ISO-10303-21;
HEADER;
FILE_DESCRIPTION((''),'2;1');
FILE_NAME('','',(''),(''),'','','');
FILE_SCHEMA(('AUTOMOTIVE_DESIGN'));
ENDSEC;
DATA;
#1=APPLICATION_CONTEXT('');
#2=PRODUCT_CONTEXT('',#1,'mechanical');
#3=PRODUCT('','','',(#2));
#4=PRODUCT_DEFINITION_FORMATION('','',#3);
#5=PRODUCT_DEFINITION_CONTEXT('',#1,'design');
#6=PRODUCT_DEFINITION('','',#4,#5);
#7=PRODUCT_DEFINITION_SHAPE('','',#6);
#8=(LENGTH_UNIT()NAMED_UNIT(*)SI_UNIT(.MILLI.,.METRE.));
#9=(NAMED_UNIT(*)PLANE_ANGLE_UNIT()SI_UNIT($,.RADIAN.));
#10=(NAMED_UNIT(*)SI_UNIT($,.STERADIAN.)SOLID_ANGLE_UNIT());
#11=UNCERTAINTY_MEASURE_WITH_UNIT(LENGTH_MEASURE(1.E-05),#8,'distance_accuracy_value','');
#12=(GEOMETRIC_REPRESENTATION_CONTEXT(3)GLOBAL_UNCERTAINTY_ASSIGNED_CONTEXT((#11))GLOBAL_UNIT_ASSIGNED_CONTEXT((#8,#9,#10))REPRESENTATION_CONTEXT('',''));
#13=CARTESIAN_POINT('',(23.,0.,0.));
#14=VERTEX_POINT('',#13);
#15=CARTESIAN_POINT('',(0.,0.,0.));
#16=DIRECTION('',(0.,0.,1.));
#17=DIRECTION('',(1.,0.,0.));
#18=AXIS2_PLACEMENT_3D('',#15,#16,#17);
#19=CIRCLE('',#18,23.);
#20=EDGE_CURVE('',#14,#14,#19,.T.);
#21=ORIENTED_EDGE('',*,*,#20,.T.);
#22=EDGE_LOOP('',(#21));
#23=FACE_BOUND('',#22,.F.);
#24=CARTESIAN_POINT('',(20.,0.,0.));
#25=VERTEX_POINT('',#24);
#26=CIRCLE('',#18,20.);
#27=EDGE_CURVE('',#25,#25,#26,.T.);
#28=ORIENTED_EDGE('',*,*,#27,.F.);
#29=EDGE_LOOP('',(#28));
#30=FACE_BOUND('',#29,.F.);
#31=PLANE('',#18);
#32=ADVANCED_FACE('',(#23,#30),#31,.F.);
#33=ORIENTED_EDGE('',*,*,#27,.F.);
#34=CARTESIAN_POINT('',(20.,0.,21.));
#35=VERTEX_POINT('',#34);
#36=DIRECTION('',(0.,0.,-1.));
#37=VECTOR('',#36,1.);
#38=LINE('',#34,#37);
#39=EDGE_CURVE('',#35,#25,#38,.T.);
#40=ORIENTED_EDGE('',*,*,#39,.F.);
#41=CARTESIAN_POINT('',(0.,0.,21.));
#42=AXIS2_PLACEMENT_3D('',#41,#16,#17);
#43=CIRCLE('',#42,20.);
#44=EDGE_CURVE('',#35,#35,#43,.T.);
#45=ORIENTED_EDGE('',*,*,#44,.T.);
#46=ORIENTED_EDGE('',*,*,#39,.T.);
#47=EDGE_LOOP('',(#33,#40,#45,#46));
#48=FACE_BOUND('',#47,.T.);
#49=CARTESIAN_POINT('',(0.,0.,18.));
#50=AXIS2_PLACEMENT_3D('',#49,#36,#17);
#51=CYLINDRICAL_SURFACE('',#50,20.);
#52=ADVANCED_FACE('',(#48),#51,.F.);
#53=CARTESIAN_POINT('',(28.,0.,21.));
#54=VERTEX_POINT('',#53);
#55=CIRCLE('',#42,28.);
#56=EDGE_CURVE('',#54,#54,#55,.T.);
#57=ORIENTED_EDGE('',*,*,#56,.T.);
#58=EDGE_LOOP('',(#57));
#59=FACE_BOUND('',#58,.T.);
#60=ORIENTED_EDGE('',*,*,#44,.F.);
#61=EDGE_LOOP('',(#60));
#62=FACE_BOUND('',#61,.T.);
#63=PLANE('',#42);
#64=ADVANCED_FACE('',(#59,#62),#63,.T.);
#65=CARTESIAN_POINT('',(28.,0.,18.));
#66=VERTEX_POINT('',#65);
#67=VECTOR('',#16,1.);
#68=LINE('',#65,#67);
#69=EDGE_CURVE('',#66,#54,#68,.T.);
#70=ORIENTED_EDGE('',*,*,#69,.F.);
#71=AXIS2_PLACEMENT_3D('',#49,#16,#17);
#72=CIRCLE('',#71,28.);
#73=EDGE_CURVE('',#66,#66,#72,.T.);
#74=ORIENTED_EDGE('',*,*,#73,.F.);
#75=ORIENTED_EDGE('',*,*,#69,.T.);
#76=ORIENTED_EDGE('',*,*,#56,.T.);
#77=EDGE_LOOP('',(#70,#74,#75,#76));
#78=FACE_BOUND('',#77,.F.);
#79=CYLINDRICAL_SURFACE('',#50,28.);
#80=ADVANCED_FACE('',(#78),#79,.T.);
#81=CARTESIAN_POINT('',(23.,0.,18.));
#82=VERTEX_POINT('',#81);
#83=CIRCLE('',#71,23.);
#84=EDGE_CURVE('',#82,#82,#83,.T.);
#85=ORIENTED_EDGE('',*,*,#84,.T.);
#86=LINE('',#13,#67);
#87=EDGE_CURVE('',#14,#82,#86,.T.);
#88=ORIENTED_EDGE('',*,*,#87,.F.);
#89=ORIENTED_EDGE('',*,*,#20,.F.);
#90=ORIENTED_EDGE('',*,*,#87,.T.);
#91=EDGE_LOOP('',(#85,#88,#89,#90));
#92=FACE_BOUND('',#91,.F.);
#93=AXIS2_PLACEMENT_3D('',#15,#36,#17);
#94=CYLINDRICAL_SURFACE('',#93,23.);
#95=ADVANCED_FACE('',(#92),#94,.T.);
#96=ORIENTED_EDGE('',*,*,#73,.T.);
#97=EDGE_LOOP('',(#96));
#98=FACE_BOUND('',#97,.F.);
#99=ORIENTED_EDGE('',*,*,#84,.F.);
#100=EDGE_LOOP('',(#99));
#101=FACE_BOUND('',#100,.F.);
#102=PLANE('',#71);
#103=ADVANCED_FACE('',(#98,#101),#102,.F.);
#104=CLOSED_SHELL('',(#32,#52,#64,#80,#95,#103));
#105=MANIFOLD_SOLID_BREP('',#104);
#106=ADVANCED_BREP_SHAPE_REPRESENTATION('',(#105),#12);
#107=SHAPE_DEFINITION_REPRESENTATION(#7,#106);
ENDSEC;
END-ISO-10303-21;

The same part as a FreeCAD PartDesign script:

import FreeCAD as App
import Part
import Sketcher
Q = App.Units.Quantity

doc = App.newDocument("Part")
body = doc.addObject("PartDesign::Body", "Body")

# Sketch on XY plane
sketch1 = doc.addObject("Sketcher::SketchObject", "Sketch")
body.addObject(sketch1)
sketch1.AttachmentSupport = (doc.XY_Plane, [""])
sketch1.MapMode = "FlatFace"
sketch1.addGeometry(Part.Circle(App.Vector(0, 0, 0), App.Vector(0, 0, 1), 23), False)
sketch1.addGeometry(Part.Circle(App.Vector(0, 0, 0), App.Vector(0, 0, 1), 20), False)
sketch1.addConstraint(Sketcher.Constraint("Coincident", 0, 3, -1, 1))
sketch1.addConstraint(Sketcher.Constraint("Coincident", 1, 3, -1, 1))
sketch1.addConstraint(Sketcher.Constraint("Diameter", 0, Q("46 mm")))
sketch1.addConstraint(Sketcher.Constraint("Diameter", 1, Q("40 mm")))
pad1 = doc.addObject("PartDesign::Pad", "Pad")
body.addObject(pad1)
pad1.Profile = sketch1
pad1.Length = 18

# Sketch on XY plane
sketch2 = doc.addObject("Sketcher::SketchObject", "Sketch001")
body.addObject(sketch2)
sketch2.AttachmentSupport = (doc.XY_Plane, [""])
sketch2.MapMode = "FlatFace"
sketch2.AttachmentOffset = App.Placement(App.Vector(0, 0, 18), App.Rotation())
sketch2.addGeometry(Part.Circle(App.Vector(0, 0, 0), App.Vector(0, 0, 1), 28), False)
sketch2.addGeometry(Part.Circle(App.Vector(0, 0, 0), App.Vector(0, 0, 1), 20), False)
sketch2.addConstraint(Sketcher.Constraint("Coincident", 0, 3, -1, 1))
sketch2.addConstraint(Sketcher.Constraint("Coincident", 1, 3, -1, 1))
sketch2.addConstraint(Sketcher.Constraint("Diameter", 0, Q("56 mm")))
sketch2.addConstraint(Sketcher.Constraint("Diameter", 1, Q("40 mm")))
pad2 = doc.addObject("PartDesign::Pad", "Pad001")
body.addObject(pad2)
pad2.Profile = sketch2
pad2.Length = 3

doc.recompute()
